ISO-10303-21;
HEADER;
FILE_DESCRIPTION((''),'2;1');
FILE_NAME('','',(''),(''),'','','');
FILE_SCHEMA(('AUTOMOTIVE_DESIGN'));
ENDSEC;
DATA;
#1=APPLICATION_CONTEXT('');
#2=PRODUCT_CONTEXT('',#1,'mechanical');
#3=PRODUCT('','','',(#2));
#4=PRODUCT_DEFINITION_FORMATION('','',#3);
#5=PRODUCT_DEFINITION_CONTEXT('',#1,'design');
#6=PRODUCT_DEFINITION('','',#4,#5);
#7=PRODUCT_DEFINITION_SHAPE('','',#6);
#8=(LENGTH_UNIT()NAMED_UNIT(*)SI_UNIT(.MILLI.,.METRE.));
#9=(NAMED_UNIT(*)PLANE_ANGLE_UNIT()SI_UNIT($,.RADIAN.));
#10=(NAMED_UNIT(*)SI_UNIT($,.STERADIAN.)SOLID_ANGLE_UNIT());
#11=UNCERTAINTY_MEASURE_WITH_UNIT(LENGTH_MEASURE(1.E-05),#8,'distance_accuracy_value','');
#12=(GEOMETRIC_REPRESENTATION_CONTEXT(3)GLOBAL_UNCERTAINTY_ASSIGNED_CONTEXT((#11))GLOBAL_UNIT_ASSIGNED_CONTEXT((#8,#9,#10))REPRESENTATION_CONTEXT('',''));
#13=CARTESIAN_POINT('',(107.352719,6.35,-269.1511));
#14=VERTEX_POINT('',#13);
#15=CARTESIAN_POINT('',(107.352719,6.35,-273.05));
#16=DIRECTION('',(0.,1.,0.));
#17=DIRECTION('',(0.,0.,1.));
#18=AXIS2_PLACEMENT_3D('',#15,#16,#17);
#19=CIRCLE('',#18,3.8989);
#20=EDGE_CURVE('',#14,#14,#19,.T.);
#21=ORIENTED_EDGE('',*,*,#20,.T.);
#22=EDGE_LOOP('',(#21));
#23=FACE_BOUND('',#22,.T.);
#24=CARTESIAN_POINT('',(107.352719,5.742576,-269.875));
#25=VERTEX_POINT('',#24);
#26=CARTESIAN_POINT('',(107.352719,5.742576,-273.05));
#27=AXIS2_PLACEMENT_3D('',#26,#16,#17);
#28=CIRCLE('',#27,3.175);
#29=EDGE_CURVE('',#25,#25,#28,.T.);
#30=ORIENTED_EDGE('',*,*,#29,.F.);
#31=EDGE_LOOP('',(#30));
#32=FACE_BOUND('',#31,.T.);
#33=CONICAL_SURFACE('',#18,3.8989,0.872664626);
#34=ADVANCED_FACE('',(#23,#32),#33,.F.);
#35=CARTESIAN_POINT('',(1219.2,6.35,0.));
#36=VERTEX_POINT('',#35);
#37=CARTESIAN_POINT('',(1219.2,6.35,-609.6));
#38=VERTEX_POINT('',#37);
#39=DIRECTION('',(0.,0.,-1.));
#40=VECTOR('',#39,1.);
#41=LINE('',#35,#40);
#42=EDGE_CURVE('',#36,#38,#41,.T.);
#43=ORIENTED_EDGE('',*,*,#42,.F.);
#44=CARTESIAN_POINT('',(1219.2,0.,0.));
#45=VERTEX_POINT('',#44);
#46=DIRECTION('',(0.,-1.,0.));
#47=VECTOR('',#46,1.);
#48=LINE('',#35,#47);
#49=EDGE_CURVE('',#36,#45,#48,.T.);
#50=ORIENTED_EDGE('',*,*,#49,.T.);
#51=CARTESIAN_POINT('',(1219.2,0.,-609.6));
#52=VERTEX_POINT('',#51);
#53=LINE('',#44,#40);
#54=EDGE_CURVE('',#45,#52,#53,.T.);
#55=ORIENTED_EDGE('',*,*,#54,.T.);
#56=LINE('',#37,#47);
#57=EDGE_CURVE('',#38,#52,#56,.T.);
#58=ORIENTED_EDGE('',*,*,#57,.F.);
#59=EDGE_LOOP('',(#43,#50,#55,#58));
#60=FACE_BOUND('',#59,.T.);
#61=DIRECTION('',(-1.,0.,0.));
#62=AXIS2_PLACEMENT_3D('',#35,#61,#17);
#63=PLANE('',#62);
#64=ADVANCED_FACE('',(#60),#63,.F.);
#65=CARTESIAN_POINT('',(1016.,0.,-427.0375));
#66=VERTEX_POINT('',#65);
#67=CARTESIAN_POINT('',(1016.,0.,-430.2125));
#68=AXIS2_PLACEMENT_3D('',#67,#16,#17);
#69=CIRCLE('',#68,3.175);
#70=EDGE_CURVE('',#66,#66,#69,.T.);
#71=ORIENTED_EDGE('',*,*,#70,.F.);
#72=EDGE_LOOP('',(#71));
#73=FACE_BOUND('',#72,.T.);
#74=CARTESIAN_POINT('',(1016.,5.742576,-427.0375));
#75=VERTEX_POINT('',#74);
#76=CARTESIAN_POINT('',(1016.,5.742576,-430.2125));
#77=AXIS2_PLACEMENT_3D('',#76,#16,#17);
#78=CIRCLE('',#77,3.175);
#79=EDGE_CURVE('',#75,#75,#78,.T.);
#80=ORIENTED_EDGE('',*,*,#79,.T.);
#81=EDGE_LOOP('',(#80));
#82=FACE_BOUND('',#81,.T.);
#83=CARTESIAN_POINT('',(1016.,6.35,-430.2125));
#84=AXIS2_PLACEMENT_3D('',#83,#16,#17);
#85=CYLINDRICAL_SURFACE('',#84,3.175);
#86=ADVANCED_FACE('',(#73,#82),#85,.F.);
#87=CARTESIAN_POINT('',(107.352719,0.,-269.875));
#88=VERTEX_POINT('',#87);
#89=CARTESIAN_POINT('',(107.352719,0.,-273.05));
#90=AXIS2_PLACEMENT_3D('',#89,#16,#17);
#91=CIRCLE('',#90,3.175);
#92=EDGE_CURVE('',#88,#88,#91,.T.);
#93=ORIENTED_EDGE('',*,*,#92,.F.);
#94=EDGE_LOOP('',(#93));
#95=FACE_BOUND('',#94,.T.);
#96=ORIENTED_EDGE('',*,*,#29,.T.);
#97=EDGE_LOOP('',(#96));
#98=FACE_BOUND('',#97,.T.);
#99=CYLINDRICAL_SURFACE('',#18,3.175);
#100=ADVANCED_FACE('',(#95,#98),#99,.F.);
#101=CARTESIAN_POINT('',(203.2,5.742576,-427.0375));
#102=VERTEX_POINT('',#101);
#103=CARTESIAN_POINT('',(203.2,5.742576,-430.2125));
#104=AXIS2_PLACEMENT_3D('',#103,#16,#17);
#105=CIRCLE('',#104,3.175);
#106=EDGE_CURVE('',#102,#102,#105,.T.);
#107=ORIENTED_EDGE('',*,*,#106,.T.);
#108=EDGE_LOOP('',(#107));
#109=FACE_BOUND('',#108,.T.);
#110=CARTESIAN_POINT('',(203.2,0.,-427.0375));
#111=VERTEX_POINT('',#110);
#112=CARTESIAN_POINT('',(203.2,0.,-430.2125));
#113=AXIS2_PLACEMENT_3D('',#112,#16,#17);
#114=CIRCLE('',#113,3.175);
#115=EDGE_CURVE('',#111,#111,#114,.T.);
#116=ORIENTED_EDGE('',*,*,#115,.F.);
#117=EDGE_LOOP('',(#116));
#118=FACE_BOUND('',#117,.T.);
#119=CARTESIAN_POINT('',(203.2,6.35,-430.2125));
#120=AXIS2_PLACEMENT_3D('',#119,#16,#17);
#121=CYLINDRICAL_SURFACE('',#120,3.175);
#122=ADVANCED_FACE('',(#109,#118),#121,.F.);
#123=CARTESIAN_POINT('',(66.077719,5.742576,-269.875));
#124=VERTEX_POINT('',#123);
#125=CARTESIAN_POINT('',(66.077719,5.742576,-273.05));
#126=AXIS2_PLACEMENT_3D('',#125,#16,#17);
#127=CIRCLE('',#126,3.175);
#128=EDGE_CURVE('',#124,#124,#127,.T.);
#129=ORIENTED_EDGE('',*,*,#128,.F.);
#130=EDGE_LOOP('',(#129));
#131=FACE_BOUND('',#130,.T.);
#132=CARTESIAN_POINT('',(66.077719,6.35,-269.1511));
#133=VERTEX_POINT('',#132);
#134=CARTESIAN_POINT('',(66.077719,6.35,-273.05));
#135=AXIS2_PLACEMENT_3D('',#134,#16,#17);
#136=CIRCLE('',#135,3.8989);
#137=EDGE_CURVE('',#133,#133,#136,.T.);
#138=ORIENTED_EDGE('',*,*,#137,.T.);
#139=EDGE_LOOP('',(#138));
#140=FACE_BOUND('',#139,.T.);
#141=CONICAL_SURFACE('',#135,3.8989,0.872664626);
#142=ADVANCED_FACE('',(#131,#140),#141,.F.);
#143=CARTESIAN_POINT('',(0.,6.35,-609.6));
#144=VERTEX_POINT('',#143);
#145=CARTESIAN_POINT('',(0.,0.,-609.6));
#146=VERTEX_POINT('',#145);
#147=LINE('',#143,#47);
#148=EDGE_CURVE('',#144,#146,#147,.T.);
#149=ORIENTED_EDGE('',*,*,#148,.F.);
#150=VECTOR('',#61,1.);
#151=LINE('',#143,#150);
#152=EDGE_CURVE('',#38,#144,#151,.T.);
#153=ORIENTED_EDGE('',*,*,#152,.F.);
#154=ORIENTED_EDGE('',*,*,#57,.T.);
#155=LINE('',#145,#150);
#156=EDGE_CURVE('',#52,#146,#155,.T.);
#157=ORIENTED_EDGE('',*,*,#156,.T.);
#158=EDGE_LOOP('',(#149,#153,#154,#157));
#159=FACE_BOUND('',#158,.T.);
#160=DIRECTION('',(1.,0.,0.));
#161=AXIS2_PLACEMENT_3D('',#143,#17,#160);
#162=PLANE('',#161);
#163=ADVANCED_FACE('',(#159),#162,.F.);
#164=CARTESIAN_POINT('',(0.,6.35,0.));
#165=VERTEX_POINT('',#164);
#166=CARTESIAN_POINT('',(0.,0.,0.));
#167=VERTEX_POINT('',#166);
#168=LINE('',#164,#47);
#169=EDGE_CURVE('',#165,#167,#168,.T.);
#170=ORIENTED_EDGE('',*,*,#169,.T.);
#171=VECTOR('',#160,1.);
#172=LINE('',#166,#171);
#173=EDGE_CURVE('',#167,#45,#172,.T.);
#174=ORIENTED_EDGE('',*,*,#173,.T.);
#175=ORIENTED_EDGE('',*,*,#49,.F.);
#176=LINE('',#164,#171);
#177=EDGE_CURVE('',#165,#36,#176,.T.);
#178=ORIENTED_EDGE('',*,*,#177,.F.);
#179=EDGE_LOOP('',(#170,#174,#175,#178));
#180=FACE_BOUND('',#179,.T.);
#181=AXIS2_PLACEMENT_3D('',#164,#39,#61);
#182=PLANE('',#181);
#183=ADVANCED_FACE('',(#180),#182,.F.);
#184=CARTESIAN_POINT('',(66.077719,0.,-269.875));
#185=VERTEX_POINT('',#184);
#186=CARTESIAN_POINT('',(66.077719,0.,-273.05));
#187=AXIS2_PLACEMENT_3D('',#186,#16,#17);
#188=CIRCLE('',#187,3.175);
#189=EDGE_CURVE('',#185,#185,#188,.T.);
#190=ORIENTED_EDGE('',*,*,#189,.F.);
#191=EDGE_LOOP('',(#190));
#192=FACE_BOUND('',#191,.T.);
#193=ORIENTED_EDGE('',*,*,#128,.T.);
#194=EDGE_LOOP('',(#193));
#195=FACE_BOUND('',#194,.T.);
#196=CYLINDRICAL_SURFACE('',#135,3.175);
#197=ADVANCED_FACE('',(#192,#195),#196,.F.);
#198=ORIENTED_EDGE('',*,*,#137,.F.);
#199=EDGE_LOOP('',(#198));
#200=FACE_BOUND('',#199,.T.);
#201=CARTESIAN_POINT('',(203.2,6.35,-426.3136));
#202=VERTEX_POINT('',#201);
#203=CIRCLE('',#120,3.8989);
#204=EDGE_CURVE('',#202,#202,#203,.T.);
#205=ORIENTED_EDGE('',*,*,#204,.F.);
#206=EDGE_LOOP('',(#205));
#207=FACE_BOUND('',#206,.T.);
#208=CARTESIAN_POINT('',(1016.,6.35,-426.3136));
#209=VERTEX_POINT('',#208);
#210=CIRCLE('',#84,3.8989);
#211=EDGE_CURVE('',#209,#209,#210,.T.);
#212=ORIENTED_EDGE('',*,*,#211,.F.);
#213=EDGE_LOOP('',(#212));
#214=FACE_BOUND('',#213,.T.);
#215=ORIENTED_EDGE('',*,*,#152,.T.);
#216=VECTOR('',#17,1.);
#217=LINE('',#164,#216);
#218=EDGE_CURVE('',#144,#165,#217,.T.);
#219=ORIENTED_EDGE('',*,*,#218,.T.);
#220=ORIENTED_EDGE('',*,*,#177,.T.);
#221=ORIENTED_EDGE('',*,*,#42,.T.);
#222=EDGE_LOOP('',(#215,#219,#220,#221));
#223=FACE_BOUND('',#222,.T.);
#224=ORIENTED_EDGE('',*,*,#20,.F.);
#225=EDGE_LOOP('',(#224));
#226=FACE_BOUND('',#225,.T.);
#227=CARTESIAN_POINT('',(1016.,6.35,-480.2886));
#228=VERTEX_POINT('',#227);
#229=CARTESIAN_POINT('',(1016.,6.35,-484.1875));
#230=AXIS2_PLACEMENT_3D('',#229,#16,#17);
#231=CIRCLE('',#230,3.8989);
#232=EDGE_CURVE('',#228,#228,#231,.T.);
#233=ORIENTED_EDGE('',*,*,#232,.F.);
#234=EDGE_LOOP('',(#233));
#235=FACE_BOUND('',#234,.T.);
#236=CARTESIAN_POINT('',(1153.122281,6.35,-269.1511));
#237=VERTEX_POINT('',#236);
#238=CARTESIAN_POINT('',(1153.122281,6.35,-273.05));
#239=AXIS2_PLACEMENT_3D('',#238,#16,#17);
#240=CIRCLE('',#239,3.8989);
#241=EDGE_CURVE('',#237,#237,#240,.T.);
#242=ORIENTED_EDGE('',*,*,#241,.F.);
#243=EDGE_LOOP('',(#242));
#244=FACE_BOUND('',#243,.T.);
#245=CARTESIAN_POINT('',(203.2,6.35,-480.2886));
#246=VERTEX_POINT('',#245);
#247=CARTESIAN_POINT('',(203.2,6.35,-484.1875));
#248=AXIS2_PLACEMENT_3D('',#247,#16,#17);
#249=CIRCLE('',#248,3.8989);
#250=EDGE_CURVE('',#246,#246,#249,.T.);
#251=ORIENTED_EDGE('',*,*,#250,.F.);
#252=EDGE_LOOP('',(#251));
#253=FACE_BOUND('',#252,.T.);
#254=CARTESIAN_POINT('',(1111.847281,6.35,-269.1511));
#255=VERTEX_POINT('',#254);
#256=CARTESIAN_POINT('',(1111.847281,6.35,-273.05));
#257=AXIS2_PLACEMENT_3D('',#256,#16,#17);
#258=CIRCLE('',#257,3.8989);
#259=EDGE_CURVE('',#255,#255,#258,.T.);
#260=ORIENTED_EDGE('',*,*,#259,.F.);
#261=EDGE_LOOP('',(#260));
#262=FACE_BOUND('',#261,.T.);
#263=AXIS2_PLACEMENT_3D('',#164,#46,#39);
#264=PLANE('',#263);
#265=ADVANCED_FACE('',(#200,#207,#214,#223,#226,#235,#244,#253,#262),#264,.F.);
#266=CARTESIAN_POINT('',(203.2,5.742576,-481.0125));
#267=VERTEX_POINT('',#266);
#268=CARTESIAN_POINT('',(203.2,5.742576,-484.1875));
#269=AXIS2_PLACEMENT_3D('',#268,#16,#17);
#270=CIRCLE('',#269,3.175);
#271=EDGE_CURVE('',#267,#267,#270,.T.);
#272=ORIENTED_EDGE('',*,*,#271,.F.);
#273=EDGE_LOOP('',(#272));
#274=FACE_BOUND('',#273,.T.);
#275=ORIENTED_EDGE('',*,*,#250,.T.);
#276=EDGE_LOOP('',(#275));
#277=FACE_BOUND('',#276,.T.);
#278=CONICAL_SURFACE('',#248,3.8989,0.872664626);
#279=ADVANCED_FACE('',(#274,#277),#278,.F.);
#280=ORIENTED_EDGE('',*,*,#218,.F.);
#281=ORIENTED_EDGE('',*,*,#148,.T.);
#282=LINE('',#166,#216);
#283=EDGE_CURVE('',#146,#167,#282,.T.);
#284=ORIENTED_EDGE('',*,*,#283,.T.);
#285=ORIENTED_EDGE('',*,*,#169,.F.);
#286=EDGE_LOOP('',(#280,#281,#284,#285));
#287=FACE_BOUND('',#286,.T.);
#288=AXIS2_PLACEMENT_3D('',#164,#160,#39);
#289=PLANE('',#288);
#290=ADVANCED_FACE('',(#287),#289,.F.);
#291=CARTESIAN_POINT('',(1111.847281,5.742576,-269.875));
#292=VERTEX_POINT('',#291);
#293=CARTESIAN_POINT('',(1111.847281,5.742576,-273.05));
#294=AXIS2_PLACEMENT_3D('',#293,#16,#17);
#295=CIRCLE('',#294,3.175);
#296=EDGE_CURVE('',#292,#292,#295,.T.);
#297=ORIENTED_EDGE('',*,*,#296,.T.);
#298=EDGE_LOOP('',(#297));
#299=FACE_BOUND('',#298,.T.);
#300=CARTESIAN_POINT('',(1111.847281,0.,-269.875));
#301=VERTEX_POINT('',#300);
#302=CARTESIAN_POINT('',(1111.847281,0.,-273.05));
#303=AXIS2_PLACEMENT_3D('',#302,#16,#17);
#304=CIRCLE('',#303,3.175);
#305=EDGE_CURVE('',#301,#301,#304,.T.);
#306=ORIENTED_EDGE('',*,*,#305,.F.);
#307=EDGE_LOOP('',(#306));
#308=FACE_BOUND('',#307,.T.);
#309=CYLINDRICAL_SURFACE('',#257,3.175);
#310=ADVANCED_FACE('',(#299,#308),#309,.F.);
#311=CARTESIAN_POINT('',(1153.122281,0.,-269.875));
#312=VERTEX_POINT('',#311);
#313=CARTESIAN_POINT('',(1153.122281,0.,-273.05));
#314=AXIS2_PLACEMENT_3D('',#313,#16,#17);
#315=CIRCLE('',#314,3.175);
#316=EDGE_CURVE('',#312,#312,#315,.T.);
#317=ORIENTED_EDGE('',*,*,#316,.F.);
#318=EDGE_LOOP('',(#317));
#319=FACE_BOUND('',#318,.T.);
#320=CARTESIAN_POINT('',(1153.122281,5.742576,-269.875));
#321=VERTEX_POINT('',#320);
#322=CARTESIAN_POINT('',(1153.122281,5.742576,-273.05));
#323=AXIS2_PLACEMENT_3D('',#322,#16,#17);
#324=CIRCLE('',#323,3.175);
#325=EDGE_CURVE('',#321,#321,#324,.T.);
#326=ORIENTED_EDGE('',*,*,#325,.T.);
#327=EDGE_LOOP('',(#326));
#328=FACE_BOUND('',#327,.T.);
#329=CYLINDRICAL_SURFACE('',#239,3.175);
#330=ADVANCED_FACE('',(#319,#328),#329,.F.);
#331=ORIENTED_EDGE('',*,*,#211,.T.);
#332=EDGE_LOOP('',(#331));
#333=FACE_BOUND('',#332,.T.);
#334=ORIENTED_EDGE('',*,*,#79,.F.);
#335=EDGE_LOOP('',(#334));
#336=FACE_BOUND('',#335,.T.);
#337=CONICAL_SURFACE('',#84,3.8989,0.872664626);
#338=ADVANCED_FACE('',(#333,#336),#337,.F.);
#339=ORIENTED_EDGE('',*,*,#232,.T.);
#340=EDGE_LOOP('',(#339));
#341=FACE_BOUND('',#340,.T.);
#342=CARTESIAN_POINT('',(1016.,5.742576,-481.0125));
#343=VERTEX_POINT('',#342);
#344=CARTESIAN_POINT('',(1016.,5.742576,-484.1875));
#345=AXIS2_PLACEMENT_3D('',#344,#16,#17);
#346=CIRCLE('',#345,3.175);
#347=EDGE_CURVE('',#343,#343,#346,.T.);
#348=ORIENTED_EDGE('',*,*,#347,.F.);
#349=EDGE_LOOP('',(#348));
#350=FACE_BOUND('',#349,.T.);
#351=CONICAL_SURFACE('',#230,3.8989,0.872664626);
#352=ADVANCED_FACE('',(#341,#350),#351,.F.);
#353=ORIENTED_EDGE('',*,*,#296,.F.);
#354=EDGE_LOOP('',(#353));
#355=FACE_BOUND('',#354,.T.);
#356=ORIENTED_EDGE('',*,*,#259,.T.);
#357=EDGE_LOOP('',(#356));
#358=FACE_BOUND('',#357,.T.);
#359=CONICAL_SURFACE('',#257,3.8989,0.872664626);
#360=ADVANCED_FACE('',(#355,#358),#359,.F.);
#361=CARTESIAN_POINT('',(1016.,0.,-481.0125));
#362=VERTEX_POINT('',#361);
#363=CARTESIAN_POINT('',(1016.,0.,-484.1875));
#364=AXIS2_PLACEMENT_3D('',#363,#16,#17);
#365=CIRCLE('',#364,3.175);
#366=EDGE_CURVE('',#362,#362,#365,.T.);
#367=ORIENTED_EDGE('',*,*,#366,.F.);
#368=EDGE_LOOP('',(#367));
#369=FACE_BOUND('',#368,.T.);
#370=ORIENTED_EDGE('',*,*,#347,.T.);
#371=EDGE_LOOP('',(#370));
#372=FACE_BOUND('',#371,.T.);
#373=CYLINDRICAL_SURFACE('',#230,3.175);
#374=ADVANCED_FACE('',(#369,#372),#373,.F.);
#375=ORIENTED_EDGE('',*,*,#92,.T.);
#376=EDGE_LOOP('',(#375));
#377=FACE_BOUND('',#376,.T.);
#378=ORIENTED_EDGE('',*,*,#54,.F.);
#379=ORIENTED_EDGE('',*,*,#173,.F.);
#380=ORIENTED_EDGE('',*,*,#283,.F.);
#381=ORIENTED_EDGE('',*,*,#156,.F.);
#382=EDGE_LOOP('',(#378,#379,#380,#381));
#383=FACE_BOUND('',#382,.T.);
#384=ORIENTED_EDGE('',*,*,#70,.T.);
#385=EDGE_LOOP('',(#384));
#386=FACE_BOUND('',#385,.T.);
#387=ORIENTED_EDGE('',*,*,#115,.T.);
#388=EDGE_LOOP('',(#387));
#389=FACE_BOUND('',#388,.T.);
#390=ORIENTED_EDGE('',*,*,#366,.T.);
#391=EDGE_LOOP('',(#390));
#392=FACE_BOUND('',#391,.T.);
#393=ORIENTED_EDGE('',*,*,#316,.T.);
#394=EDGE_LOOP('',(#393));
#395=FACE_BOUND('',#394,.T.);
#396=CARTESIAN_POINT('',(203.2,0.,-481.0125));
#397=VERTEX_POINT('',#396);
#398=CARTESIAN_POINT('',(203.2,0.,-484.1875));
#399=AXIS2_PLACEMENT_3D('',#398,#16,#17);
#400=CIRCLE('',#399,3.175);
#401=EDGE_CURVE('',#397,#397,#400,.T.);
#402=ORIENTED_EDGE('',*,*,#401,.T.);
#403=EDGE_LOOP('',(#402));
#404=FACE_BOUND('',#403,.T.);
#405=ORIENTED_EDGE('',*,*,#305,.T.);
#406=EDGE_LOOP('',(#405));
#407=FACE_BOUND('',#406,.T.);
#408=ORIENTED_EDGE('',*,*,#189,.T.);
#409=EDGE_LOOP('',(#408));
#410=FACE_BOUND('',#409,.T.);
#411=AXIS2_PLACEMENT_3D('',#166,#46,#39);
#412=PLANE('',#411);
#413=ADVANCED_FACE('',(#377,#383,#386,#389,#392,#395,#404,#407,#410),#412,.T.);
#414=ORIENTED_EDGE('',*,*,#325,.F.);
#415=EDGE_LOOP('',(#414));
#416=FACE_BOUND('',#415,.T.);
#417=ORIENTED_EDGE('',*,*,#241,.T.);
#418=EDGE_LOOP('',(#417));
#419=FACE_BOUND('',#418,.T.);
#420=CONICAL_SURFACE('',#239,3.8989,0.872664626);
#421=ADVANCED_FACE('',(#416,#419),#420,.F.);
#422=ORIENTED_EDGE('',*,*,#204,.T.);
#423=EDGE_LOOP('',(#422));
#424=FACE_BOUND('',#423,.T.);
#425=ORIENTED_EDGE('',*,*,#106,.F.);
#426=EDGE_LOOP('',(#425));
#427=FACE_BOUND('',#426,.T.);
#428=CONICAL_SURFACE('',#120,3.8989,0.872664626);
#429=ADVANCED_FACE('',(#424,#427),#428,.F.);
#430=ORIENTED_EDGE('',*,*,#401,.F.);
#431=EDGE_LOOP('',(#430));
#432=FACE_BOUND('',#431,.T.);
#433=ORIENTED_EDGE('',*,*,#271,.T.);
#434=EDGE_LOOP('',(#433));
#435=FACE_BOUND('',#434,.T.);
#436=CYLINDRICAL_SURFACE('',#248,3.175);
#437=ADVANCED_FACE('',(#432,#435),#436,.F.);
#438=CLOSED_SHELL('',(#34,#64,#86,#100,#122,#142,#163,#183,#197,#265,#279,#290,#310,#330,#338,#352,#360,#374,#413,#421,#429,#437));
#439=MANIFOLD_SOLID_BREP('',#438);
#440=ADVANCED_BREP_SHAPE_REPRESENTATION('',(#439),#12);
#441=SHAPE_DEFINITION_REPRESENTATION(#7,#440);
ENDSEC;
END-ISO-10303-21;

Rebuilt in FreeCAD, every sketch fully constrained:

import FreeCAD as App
import Part
import Sketcher

V = App.Vector
Q = App.Units.Quantity


def add_polygon(sketch, points):
    """Adds a closed chain of lines whose ends are joined by coincident constraints."""
    first, n = sketch.GeometryCount, len(points)
    for a, b in zip(points, points[1:] + points[:1]):
        sketch.addGeometry(Part.LineSegment(App.Vector(*a, 0), App.Vector(*b, 0)), False)
    for i in range(n):
        sketch.addConstraint(Sketcher.Constraint("Coincident", first + i, 2, first + (i + 1) % n, 1))

doc = App.newDocument("Part")
body = doc.addObject("PartDesign::Body", "Body")

# Sketch on XZ plane
sketch1 = body.newObject("Sketcher::SketchObject", "Sketch")
sketch1.AttachmentSupport = (doc.getObject("XZ_Plane"), [""])
sketch1.MapMode = "FlatFace"
add_polygon(sketch1, [(0, -610), (0, 0), (1219, 0), (1219, -610)])  # lines 0-3
sketch1.addConstraint([
    Sketcher.Constraint("Vertical", 0),
    Sketcher.Constraint("Horizontal", 1),
    Sketcher.Constraint("Vertical", 2),
    Sketcher.Constraint("Horizontal", 3),
    Sketcher.Constraint("Coincident", 0, 2, -1, 1),
    Sketcher.Constraint("DistanceX", 1, 1, 1, 2, Q("48 in")),
    Sketcher.Constraint("DistanceY", 0, 1, 0, 2, Q("24 in")),
])
pad1 = body.newObject("PartDesign::Pad", "Pad")
pad1.Profile = sketch1
pad1.Length = Q("0.25 in")
pad1.Reversed = True

# Sketch on XZ plane
sketch2 = body.newObject("Sketcher::SketchObject", "Sketch001")
sketch2.AttachmentSupport = (doc.getObject("XZ_Plane"), [""])
sketch2.MapMode = "FlatFace"
sketch2.AttachmentOffset = App.Placement(V(0, 0, -0.25 * 25.4), App.Rotation())
sketch2.addGeometry([
    Part.Circle(V(66.1, -273.1, 0), V(0, 0, 1), 3.2),  # 0
    Part.Circle(V(107.4, -273.1, 0), V(0, 0, 1), 3.2),  # 1
    Part.Circle(V(203.2, -484.2, 0), V(0, 0, 1), 3.2),  # 2
    Part.Circle(V(203.2, -430.2, 0), V(0, 0, 1), 3.2),  # 3
    Part.Circle(V(1016, -484.2, 0), V(0, 0, 1), 3.2),  # 4
    Part.Circle(V(1016, -430.2, 0), V(0, 0, 1), 3.2),  # 5
    Part.Circle(V(1111.8, -273.1, 0), V(0, 0, 1), 3.2),  # 6
    Part.Circle(V(1153.1, -273.1, 0), V(0, 0, 1), 3.2),  # 7
], False)
sketch2.addConstraint([
    Sketcher.Constraint("Equal", 0, 1),
    Sketcher.Constraint("Equal", 1, 2),
    Sketcher.Constraint("Equal", 2, 3),
    Sketcher.Constraint("Equal", 3, 4),
    Sketcher.Constraint("Equal", 4, 5),
    Sketcher.Constraint("Equal", 5, 6),
    Sketcher.Constraint("Equal", 6, 7),
    Sketcher.Constraint("Horizontal", 0, 3, 1, 3),
    Sketcher.Constraint("Horizontal", 2, 3, 4, 3),
    Sketcher.Constraint("Horizontal", 3, 3, 5, 3),
    Sketcher.Constraint("Horizontal", 1, 3, 6, 3),
    Sketcher.Constraint("Horizontal", 6, 3, 7, 3),
    Sketcher.Constraint("Vertical", 2, 3, 3, 3),
    Sketcher.Constraint("Vertical", 4, 3, 5, 3),
    Sketcher.Constraint("Diameter", 0, Q("0.25 in")),
    Sketcher.Constraint("DistanceX", -1, 1, 2, 3, Q("8 in")),
    Sketcher.Constraint("DistanceX", -1, 1, 4, 3, Q("40 in")),
    Sketcher.Constraint("DistanceY", 0, 3, -1, 1, Q("10.75 in")),
    Sketcher.Constraint("DistanceY", 2, 3, -1, 1, Q("19.0625 in")),
    Sketcher.Constraint("DistanceY", 3, 3, -1, 1, Q("16.9375 in")),
    Sketcher.Constraint("DistanceX", 0, 3, 1, 3, Q("1.625 in")),
    Sketcher.Constraint("DistanceX", 6, 3, 7, 3, Q("1.625 in")),
    Sketcher.Constraint("DistanceX", -1, 1, 0, 3, 66.077719),
    Sketcher.Constraint("DistanceX", -1, 1, 6, 3, 1111.847281),
])
doc.recompute()
hole = body.newObject("PartDesign::Hole", "Hole")
hole.Profile = sketch2
hole.ThreadType = "None"
hole.Diameter = Q("0.25 in")
hole.DepthType = "ThroughAll"
hole.HoleCutType = "Countersink"
hole.HoleCutDiameter = Q("0.307 in")
hole.HoleCutCountersinkAngle = 100
hole.Reversed = True

doc.recompute()
